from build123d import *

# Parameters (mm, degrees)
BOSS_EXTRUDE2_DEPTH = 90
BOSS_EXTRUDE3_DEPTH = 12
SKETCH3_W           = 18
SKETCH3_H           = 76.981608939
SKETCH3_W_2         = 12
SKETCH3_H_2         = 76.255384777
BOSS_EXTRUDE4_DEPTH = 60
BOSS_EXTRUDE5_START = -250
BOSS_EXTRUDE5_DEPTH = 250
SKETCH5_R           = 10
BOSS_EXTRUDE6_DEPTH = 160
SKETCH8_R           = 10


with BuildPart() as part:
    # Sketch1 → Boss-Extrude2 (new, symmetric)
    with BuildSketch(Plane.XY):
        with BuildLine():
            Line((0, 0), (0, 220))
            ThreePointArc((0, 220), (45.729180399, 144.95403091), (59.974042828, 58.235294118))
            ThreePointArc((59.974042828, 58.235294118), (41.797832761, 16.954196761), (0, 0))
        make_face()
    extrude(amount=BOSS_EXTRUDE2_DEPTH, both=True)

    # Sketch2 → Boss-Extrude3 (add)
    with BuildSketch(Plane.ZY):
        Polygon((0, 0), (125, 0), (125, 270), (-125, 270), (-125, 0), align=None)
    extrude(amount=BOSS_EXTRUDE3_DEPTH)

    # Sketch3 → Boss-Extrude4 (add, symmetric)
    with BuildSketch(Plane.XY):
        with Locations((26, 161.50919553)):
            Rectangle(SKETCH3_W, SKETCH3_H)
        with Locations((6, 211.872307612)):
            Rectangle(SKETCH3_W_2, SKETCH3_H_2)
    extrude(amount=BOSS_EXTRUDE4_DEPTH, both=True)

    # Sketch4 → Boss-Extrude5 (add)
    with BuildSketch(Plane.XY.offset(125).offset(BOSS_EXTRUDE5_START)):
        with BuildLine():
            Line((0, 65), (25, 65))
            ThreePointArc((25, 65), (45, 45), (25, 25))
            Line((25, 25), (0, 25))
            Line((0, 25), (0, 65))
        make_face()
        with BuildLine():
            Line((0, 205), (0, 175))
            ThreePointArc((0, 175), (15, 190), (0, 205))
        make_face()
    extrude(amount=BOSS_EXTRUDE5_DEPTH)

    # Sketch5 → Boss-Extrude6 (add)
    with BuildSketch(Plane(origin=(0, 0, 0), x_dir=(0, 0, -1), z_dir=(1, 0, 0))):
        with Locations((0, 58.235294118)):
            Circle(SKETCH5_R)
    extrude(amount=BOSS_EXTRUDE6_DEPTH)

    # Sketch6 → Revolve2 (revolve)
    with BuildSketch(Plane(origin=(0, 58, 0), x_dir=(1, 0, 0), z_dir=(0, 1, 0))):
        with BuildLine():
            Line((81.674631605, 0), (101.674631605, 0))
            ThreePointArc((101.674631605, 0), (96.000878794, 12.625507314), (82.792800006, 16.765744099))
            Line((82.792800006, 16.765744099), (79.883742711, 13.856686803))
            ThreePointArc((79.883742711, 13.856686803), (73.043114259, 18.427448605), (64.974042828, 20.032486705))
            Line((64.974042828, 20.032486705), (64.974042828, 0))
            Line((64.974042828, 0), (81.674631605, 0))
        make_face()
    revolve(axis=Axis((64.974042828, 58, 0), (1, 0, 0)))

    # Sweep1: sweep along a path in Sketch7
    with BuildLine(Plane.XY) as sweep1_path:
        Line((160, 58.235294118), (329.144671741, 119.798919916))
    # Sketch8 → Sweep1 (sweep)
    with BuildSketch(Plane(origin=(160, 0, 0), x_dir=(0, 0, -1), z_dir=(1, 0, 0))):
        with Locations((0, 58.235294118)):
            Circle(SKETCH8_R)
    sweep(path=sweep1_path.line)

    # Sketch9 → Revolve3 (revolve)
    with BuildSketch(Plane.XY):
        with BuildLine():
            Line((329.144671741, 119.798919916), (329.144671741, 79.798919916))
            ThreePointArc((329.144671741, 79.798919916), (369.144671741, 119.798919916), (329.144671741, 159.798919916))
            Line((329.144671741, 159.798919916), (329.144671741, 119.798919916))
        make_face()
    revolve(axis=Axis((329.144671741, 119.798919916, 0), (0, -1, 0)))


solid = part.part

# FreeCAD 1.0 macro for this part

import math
import FreeCAD as App
import Part
import Sketcher
from FreeCAD import Vector
Q = App.Units.Quantity


def add_polygon(sketch, points):
    """Adds a closed chain of lines whose ends are joined by coincident constraints."""
    first, n = sketch.GeometryCount, len(points)
    for a, b in zip(points, points[1:] + points[:1]):
        sketch.addGeometry(Part.LineSegment(App.Vector(*a, 0), App.Vector(*b, 0)), False)
    for i in range(n):
        sketch.addConstraint(Sketcher.Constraint("Coincident", first + i, 2, first + (i + 1) % n, 1))

doc = App.newDocument("Part")
params = doc.addObject("Spreadsheet::Sheet", "Params")
for row, (alias, value) in enumerate([
    ("sketch1_radius", "60 mm"),
    ("sketch1_radius2", "230 mm"),
    ("sketch1_height", "220 mm"),
    ("pad1_length", "180 mm"),
    ("sketch2_width", "270 mm"),
    ("sketch2_height", "250 mm"),
    ("pad2_length", "12 mm"),
    ("sketch3_width", "18 mm"),
    ("sketch3_width2", "12 mm"),
    ("pad3_length", "120 mm"),
    ("sketch4_radius", "20 mm"),
    ("sketch4_radius2", "15 mm"),
    ("sketch4_width", "25 mm"),
    ("pad4_length", "250 mm"),
    ("sketch5_diameter", "20 mm"),
    ("pad5_length", "160 mm"),
    ("revolution_angle", "360 deg"),
    ("sketch7_diameter", "20 mm"),
    ("sketch8_width", "180 mm"),
    ("sketch9_radius", "40 mm"),
    ("revolution2_angle", "360 deg"),
], start=1):
    params.set(f"A{row}", alias)
    params.set(f"B{row}", "=" + value)
    params.setAlias(f"B{row}", alias)

body = doc.addObject("PartDesign::Body", "Body")

# Sketch on XY plane
sketch1 = body.newObject("Sketcher::SketchObject", "Sketch")
sketch1.AttachmentSupport = (doc.getObject("XY_Plane"), [""])
sketch1.MapMode = "FlatFace"
sketch1.addGeometry([
    Part.LineSegment(Vector(0, 220, 0), Vector(0, 0, 0)),
    Part.ArcOfCircle(Part.Circle(Vector(0, 60, 0), Vector(0, 0, 1), 60), math.radians(-90), math.radians(-2)),
    Part.ArcOfCircle(Part.Circle(Vector(-170, 65, 0), Vector(0, 0, 1), 230), math.radians(-2), math.radians(42)),
], False)
sketch1.addConstraint([
    Sketcher.Constraint("Coincident", 0, 2, 1, 1),
    Sketcher.Constraint("Tangent", 1, 2, 2, 1),
    Sketcher.Constraint("Coincident", 2, 2, 0, 1),
    Sketcher.Constraint("Vertical", 0),
    Sketcher.Constraint("Coincident", 0, 2, -1, 1),
    Sketcher.Constraint("PointOnObject", 1, 3, -2),
    Sketcher.Constraint("Radius", 1, 60.0),
    Sketcher.Constraint("Radius", 2, 230.0),
    Sketcher.Constraint("DistanceY", 0, 2, 0, 1, 220.0),
])
sketch1.setExpression("Constraints[6]", "Params.sketch1_radius")
sketch1.setExpression("Constraints[7]", "Params.sketch1_radius2")
sketch1.setExpression("Constraints[8]", "Params.sketch1_height")
pad1 = body.newObject("PartDesign::Pad", "Pad")
pad1.Profile = sketch1
pad1.setExpression("Length", "Params.pad1_length")
pad1.Midplane = True

# Sketch on YZ plane
sketch2 = body.newObject("Sketcher::SketchObject", "Sketch001")
sketch2.AttachmentSupport = (doc.getObject("YZ_Plane"), [""])
sketch2.MapMode = "FlatFace"
add_polygon(sketch2, [(0, 125), (270, 125), (270, -125), (0, -125)])  # lines 0-3
sketch2.addConstraint([
    Sketcher.Constraint("Horizontal", 0),
    Sketcher.Constraint("Vertical", 1),
    Sketcher.Constraint("Horizontal", 2),
    Sketcher.Constraint("Vertical", 3),
    Sketcher.Constraint("Symmetric", 2, 2, 3, 2, -1, 1),
    Sketcher.Constraint("DistanceX", 0, 1, 0, 2, 270.0),
    Sketcher.Constraint("DistanceY", 1, 2, 1, 1, 250.0),
])
sketch2.setExpression("Constraints[9]", "Params.sketch2_width")
sketch2.setExpression("Constraints[10]", "Params.sketch2_height")
pad2 = body.newObject("PartDesign::Pad", "Pad001")
pad2.Profile = sketch2
pad2.setExpression("Length", "Params.pad2_length")
pad2.Reversed = True

# Sketch on XY plane
sketch3 = body.newObject("Sketcher::SketchObject", "Sketch002")
sketch3.AttachmentSupport = (doc.getObject("XY_Plane"), [""])
sketch3.MapMode = "FlatFace"
add_polygon(sketch3, [(17, 200), (17, 123), (35, 123), (35, 200)])  # lines 0-3
add_polygon(sketch3, [(0, 250), (0, 174), (12, 174), (12, 250)])  # lines 4-7
sketch3.addConstraint([
    Sketcher.Constraint("Vertical", 0),
    Sketcher.Constraint("Horizontal", 1),
    Sketcher.Constraint("Vertical", 2),
    Sketcher.Constraint("Horizontal", 3),
    Sketcher.Constraint("Vertical", 4),
    Sketcher.Constraint("Horizontal", 5),
    Sketcher.Constraint("Vertical", 6),
    Sketcher.Constraint("Horizontal", 7),
    Sketcher.Constraint("PointOnObject", 4, 2, -2),
    Sketcher.Constraint("DistanceX", 1, 1, 1, 2, 18.0),
    Sketcher.Constraint("DistanceX", 5, 1, 5, 2, 12.0),
    Sketcher.Constraint("DistanceX", -1, 1, 0, 2, 17.0),
    Sketcher.Constraint("DistanceY", -1, 1, 2, 2, 200.0),
    Sketcher.Constraint("DistanceY", -1, 1, 6, 2, 250.0),
    Sketcher.Constraint("DistanceY", 0, 2, 0, 1, 76.981609),
    Sketcher.Constraint("DistanceY", 4, 2, 4, 1, 76.255385),
])
sketch3.setExpression("Constraints[17]", "Params.sketch3_width")
sketch3.setExpression("Constraints[18]", "Params.sketch3_width2")
pad3 = body.newObject("PartDesign::Pad", "Pad002")
pad3.Profile = sketch3
pad3.setExpression("Length", "Params.pad3_length")
pad3.Midplane = True

# Sketch on XY plane
sketch4 = body.newObject("Sketcher::SketchObject", "Sketch003")
sketch4.AttachmentSupport = (doc.getObject("XY_Plane"), [""])
sketch4.MapMode = "FlatFace"
sketch4.AttachmentOffset = App.Placement(Vector(0, 0, -125), App.Rotation())
sketch4.addGeometry([
    Part.LineSegment(Vector(25, 65, 0), Vector(0, 65, 0)),  # 0
    Part.LineSegment(Vector(0, 65, 0), Vector(0, 25, 0)),  # 1
    Part.LineSegment(Vector(0, 25, 0), Vector(25, 25, 0)),  # 2
    Part.ArcOfCircle(Part.Circle(Vector(25, 45, 0), Vector(0, 0, 1), 20), math.radians(-90), math.radians(90)),  # 3
    Part.LineSegment(Vector(0, 205, 0), Vector(0, 175, 0)),  # 4
    Part.ArcOfCircle(Part.Circle(Vector(0, 190, 0), Vector(0, 0, 1), 15), math.radians(-90), math.radians(90)),  # 5
], False)
sketch4.addConstraint([
    Sketcher.Constraint("Coincident", 0, 2, 1, 1),
    Sketcher.Constraint("Coincident", 1, 2, 2, 1),
    Sketcher.Constraint("Tangent", 2, 2, 3, 1),
    Sketcher.Constraint("Tangent", 3, 2, 0, 1),
    Sketcher.Constraint("Coincident", 4, 1, 5, 2),
    Sketcher.Constraint("Coincident", 5, 1, 4, 2),
    Sketcher.Constraint("Horizontal", 0),
    Sketcher.Constraint("Vertical", 1),
    Sketcher.Constraint("Horizontal", 2),
    Sketcher.Constraint("Vertical", 4),
    Sketcher.Constraint("PointOnObject", 5, 3, -2),
    Sketcher.Constraint("PointOnObject", 0, 2, -2),
    Sketcher.Constraint("PointOnObject", 4, 1, -2),
    Sketcher.Constraint("Radius", 3, 20.0),
    Sketcher.Constraint("Radius", 5, 15.0),
    Sketcher.Constraint("DistanceX", 0, 2, 0, 1, 25.0),
    Sketcher.Constraint("DistanceY", -1, 1, 3, 3, 45.0),
    Sketcher.Constraint("DistanceY", -1, 1, 5, 3, 190.0),
])
sketch4.setExpression("Constraints[13]", "Params.sketch4_radius")
sketch4.setExpression("Constraints[14]", "Params.sketch4_radius2")
sketch4.setExpression("Constraints[15]", "Params.sketch4_width")
pad4 = body.newObject("PartDesign::Pad", "Pad003")
pad4.Profile = sketch4
pad4.setExpression("Length", "Params.pad4_length")

# Sketch on YZ plane
sketch5 = body.newObject("Sketcher::SketchObject", "Sketch004")
sketch5.AttachmentSupport = (doc.getObject("YZ_Plane"), [""])
sketch5.MapMode = "FlatFace"
sketch5.addGeometry(Part.Circle(Vector(58, 0, 0), Vector(0, 0, 1), 10), False)
sketch5.addConstraint([
    Sketcher.Constraint("PointOnObject", 0, 3, -1),
    Sketcher.Constraint("Diameter", 0, 20.0),
    Sketcher.Constraint("DistanceX", -1, 1, 0, 3, 58.235294),
])
sketch5.setExpression("Constraints[1]", "Params.sketch5_diameter")
pad5 = body.newObject("PartDesign::Pad", "Pad004")
pad5.Profile = sketch5
pad5.setExpression("Length", "Params.pad5_length")

# Sketch on XZ plane
sketch6 = body.newObject("Sketcher::SketchObject", "Sketch005")
sketch6.AttachmentSupport = (doc.getObject("XZ_Plane"), [""])
sketch6.MapMode = "FlatFace"
sketch6.AttachmentOffset = App.Placement(Vector(0, 0, -58), App.Rotation())
sketch6.addGeometry([
    Part.ArcOfCircle(Part.Circle(Vector(84.8, 0, 0), Vector(0, 0, 1), 16.9), math.radians(-97), math.radians(0)),  # 0
    Part.LineSegment(Vector(82.8, -16.8, 0), Vector(79.9, -13.9, 0)),  # 1
    Part.ArcOfCircle(Part.Circle(Vector(65, 1.1, 0), Vector(0, 0, 1), 21.1), math.radians(-90), math.radians(-45)),  # 2
    Part.LineSegment(Vector(65, -20, 0), Vector(65, 0, 0)),  # 3
    Part.LineSegment(Vector(65, 0, 0), Vector(101.7, 0, 0)),  # 4
], False)
sketch6.addConstraint([
    Sketcher.Constraint("Coincident", 0, 1, 1, 1),
    Sketcher.Constraint("Coincident", 1, 2, 2, 2),
    Sketcher.Constraint("Coincident", 2, 1, 3, 1),
    Sketcher.Constraint("Coincident", 3, 2, 4, 1),
    Sketcher.Constraint("Coincident", 4, 2, 0, 2),
    Sketcher.Constraint("Vertical", 3),
    Sketcher.Constraint("Horizontal", 4),
    Sketcher.Constraint("PointOnObject", 0, 3, -1),
    Sketcher.Constraint("PointOnObject", 3, 2, -1),
    Sketcher.Constraint("Angle", 1, Q("135 deg")),
    Sketcher.Constraint("Radius", 2, 21.0855),
    Sketcher.Constraint("Radius", 0, 16.884319),
    Sketcher.Constraint("DistanceX", 4, 1, 4, 2, 36.700589),
    Sketcher.Constraint("DistanceX", -1, 1, 0, 1, 82.7928),
    Sketcher.Constraint("DistanceX", 2, 3, 1, 2, 14.9097),
    Sketcher.Constraint("DistanceX", 2, 1, 1, 2, 14.9097),
    Sketcher.Constraint("Distance", 1, 4.114028),
])
revolution = body.newObject("PartDesign::Revolution", "Revolution")
revolution.Profile = sketch6
revolution.ReferenceAxis = (sketch6, ["H_Axis"])
revolution.setExpression("Angle", "Params.revolution_angle")

# Sketch on YZ plane
sketch7 = body.newObject("Sketcher::SketchObject", "Sketch006")
sketch7.AttachmentSupport = (doc.getObject("YZ_Plane"), [""])
sketch7.MapMode = "FlatFace"
sketch7.AttachmentOffset = App.Placement(Vector(0, 0, 160), App.Rotation())
sketch7.addGeometry(Part.Circle(Vector(58, 0, 0), Vector(0, 0, 1), 10), False)
sketch7.addConstraint([
    Sketcher.Constraint("PointOnObject", 0, 3, -1),
    Sketcher.Constraint("Diameter", 0, 20.0),
    Sketcher.Constraint("DistanceX", -1, 1, 0, 3, 58.235294),
])
sketch7.setExpression("Constraints[1]", "Params.sketch7_diameter")

# Sketch on an angled plane
sketch8 = body.newObject("Sketcher::SketchObject", "Sketch007")
sketch8.Placement = App.Placement(Vector(-0.000018, 0.00005, 0), App.Rotation(Vector(0.939692621, 0.342020143, 0), Vector(0, 0, 1), Vector(0.342020143, -0.939692621, 0), "ZXY"))
sketch8.addGeometry(Part.LineSegment(Vector(170, 0, 0), Vector(350, 0, 0)), False)
sketch8.addConstraint([
    Sketcher.Constraint("Horizontal", 0),
    Sketcher.Constraint("PointOnObject", 0, 1, -1),
    Sketcher.Constraint("DistanceX", 0, 1, 0, 2, 180.0),
    Sketcher.Constraint("DistanceX", -1, 1, 0, 1, 170.268463),
])
sketch8.setExpression("Constraints[2]", "Params.sketch8_width")
doc.recompute()

additivepipe = body.newObject("PartDesign::AdditivePipe", "AdditivePipe")
additivepipe.Profile = sketch7
additivepipe.Spine = (sketch8, ["Edge1"])

# Sketch on XY plane
sketch9 = body.newObject("Sketcher::SketchObject", "Sketch008")
sketch9.AttachmentSupport = (doc.getObject("XY_Plane"), [""])
sketch9.MapMode = "FlatFace"
sketch9.addGeometry([
    Part.ArcOfCircle(Part.Circle(Vector(329, 120, 0), Vector(0, 0, 1), 40), math.radians(-90), math.radians(90)),
    Part.LineSegment(Vector(329, 160, 0), Vector(329, 80, 0)),
], False)
sketch9.addGeometry(Part.LineSegment(Vector(329, 160, 0), Vector(329, 80, 0)), True)  # axis
sketch9.addConstraint([
    Sketcher.Constraint("Coincident", 0, 1, 1, 2),
    Sketcher.Constraint("Coincident", 1, 1, 0, 2),
    Sketcher.Constraint("Vertical", 1),
    Sketcher.Constraint("Vertical", 2),
    Sketcher.Constraint("Coincident", 2, 1, 1, 1),
    Sketcher.Constraint("Equal", 1, 2),
    Sketcher.Constraint("Radius", 0, 40.0),
    Sketcher.Constraint("DistanceX", -1, 1, 0, 3, 329.144672),
    Sketcher.Constraint("DistanceY", -1, 1, 0, 3, 119.79892),
    Sketcher.Constraint("DistanceX", -1, 1, 0, 1, 329.144672),
])
sketch9.setExpression("Constraints[6]", "Params.sketch9_radius")
revolution2 = body.newObject("PartDesign::Revolution", "Revolution001")
revolution2.Profile = sketch9
revolution2.ReferenceAxis = (sketch9, ["Axis0"])
revolution2.setExpression("Angle", "Params.revolution2_angle")

doc.recompute()
